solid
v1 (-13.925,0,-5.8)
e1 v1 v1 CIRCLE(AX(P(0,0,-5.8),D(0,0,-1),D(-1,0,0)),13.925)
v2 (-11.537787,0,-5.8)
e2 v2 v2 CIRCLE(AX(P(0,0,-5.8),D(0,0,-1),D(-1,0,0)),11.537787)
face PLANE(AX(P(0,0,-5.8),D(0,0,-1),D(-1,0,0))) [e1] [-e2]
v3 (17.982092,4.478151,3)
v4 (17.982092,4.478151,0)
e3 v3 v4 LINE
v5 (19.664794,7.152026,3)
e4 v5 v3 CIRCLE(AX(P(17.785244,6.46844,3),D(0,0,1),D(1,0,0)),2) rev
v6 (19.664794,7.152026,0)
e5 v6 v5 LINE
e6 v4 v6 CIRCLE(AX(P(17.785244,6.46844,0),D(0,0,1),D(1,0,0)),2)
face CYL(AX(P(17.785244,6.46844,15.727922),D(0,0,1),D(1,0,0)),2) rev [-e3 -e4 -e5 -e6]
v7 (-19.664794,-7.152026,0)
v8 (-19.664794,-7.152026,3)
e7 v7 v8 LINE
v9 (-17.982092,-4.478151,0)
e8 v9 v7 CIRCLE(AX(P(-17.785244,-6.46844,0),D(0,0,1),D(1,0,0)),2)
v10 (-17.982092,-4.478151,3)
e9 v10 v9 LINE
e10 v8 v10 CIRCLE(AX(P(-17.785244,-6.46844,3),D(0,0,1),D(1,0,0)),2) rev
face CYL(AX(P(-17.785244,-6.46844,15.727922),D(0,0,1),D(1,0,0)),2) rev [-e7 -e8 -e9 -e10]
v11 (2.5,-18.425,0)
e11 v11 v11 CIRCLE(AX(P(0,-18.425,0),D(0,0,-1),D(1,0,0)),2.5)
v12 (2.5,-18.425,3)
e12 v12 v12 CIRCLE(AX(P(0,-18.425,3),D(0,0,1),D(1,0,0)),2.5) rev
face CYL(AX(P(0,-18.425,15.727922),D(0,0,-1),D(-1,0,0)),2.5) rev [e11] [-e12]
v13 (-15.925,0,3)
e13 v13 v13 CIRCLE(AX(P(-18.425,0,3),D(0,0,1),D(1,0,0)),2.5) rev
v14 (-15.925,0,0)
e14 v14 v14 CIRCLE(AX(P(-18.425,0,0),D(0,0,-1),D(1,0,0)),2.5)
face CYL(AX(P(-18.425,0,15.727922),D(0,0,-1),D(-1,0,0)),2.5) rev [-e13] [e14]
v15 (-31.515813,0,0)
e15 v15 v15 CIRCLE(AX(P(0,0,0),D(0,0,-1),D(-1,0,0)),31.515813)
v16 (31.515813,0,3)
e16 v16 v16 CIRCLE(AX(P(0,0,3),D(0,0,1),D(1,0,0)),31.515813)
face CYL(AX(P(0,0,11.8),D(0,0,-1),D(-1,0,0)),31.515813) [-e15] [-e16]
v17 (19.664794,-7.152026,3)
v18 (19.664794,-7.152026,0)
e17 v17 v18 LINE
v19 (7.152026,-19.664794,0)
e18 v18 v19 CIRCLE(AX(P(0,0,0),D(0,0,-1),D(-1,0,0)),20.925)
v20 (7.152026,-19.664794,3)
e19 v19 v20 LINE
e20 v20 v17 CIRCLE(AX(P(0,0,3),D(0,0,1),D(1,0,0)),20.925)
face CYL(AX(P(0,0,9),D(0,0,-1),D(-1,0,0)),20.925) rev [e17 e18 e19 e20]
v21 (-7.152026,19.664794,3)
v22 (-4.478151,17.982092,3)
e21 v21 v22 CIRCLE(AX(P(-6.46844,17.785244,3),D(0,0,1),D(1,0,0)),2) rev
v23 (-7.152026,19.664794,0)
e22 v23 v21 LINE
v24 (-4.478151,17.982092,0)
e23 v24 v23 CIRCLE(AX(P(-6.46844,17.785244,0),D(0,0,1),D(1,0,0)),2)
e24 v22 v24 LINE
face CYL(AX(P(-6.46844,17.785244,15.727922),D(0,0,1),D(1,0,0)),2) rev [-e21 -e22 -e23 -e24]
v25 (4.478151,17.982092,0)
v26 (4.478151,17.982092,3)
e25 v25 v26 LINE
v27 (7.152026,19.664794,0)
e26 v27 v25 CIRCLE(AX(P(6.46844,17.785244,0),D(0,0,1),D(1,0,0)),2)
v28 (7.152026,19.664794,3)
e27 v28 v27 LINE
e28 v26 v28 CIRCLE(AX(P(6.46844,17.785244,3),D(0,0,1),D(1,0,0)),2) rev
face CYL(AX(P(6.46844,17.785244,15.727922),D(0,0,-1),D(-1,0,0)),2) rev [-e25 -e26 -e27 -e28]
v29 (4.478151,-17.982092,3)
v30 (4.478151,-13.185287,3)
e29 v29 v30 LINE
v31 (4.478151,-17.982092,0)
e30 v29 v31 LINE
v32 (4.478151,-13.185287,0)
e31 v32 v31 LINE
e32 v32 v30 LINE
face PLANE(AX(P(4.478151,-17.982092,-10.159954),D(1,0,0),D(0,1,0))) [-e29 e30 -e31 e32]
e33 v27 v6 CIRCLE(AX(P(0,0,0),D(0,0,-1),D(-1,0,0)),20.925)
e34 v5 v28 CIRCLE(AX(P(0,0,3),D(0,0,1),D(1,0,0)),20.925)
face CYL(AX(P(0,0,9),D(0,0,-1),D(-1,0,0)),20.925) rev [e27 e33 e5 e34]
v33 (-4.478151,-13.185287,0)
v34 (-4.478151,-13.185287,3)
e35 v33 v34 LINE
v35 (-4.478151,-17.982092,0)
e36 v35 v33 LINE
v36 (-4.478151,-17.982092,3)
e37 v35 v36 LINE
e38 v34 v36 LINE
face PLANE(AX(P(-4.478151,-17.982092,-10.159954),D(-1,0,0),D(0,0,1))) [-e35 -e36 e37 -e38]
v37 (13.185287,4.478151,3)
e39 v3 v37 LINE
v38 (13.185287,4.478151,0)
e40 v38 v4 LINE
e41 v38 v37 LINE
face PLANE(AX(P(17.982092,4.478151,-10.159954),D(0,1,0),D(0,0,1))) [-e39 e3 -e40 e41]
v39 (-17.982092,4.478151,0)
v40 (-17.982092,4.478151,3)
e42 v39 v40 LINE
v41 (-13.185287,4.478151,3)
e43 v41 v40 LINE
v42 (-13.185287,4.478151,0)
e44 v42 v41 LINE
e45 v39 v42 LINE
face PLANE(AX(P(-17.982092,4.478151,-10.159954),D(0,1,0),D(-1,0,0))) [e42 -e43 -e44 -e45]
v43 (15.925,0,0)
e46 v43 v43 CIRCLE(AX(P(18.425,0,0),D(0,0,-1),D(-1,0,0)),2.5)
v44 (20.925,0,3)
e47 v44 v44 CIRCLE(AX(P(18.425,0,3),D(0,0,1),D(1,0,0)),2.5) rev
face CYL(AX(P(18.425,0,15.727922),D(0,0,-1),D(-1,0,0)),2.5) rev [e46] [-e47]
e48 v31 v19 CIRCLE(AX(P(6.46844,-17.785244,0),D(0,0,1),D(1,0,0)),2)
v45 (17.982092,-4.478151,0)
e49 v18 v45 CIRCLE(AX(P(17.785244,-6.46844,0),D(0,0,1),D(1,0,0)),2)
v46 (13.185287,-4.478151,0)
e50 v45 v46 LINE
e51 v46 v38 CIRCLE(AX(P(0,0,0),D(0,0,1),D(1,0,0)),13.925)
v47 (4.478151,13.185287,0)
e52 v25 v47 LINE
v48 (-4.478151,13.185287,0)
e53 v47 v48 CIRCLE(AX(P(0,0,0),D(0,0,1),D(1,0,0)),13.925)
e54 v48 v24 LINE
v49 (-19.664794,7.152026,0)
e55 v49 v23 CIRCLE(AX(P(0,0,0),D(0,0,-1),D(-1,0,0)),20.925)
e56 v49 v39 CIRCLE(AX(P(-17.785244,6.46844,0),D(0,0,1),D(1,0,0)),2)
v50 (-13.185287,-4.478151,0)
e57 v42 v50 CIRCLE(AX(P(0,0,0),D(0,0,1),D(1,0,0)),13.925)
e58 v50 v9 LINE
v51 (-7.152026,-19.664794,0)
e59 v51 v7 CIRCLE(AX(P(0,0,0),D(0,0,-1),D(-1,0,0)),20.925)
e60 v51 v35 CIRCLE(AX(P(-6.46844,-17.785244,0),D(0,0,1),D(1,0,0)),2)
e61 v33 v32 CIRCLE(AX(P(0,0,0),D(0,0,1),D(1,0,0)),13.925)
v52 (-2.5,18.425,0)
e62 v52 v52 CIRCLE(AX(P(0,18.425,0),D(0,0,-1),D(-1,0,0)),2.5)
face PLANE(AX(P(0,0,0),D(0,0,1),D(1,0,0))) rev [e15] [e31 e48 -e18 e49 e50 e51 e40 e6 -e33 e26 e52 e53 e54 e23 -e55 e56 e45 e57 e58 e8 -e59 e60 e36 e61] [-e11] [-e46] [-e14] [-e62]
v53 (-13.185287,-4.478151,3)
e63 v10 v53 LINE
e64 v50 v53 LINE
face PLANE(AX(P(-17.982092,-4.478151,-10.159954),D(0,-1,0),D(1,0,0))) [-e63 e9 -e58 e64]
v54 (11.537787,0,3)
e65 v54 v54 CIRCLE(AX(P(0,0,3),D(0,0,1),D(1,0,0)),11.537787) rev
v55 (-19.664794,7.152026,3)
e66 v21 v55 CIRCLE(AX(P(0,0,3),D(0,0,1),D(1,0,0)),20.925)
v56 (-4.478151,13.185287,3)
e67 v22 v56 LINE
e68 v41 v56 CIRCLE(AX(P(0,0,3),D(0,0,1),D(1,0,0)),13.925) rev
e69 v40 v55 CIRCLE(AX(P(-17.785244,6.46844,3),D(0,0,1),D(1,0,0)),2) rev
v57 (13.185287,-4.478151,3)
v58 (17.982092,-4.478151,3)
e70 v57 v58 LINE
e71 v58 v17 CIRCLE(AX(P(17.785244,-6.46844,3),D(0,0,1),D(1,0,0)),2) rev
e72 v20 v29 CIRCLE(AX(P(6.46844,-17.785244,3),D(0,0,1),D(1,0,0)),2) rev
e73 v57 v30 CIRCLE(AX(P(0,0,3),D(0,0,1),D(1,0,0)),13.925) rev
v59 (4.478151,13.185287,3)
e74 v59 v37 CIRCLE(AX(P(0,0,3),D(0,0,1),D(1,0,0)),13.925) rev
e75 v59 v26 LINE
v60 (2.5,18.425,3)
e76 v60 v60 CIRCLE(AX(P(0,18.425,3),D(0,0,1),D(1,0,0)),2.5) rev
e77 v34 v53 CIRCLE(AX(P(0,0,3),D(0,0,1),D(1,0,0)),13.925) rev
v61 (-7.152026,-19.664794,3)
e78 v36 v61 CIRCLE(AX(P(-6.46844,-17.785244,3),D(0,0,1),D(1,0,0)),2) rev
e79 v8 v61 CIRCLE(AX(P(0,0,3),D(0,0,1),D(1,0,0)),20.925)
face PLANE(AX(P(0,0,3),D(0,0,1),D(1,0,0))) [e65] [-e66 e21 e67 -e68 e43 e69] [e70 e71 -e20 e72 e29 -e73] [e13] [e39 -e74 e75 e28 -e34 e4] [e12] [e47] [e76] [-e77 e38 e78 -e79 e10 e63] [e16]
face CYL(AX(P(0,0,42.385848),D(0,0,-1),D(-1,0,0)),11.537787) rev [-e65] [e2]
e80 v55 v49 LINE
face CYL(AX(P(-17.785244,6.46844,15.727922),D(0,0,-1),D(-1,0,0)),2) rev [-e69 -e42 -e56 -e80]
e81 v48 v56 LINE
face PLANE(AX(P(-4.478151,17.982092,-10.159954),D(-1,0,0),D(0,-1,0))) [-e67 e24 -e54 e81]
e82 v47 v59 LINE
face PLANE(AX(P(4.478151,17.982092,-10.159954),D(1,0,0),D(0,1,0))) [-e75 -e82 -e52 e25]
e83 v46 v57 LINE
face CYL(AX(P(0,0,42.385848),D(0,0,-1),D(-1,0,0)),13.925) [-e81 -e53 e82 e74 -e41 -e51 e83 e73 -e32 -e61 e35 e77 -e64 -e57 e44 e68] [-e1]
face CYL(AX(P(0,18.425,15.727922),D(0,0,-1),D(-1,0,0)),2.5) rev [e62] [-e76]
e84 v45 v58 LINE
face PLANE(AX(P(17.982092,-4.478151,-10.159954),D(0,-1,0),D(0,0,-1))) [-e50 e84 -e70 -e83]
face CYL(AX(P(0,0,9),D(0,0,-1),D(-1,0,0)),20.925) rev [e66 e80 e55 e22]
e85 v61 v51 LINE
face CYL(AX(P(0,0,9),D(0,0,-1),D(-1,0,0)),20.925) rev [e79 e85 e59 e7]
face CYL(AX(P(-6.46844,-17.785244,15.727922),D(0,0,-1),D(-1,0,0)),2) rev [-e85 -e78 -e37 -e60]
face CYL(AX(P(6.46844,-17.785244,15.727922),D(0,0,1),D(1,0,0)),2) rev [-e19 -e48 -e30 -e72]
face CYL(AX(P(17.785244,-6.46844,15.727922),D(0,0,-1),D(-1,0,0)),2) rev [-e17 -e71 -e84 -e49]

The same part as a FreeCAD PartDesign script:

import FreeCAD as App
import Part
import Sketcher

V = App.Vector
Q = App.Units.Quantity


def edges_at(feature, points):
    """Names of the edges that pass closest to the given points."""
    edges = feature.Shape.Edges
    near = lambda p: min(range(len(edges)), key=lambda i: edges[i].distToShape(Part.Vertex(*p))[0])
    return sorted({f"Edge{near(p) + 1}" for p in points})


def add_polygon(sketch, points):
    """Adds a closed chain of lines whose ends are joined by coincident constraints."""
    first, n = sketch.GeometryCount, len(points)
    for a, b in zip(points, points[1:] + points[:1]):
        sketch.addGeometry(Part.LineSegment(App.Vector(*a, 0), App.Vector(*b, 0)), False)
    for i in range(n):
        sketch.addConstraint(Sketcher.Constraint("Coincident", first + i, 2, first + (i + 1) % n, 1))

doc = App.newDocument("Part")
params = doc.addObject("Spreadsheet::Sheet", "Params")
for row, (alias, value) in enumerate([
    ("sketch1_diameter", "105 mm"),
    ("sketch1_diameter2", "8.2 mm"),
    ("pad1_length", "3 mm"),
    ("sketch2_diameter", "41.85 mm"),
    ("pocket1_length", "9 mm"),
    ("sketch3_diameter", "9 mm"),
    ("sketch3_diameter2", "5 mm"),
    ("pad2_length", "3 mm"),
    ("fillet_radius", "2 mm"),
    ("sketch4_diameter", "105 mm"),
    ("pocket2_length", "11.8 mm"),
    ("sketch5_diameter", "27.85 mm"),
    ("pad3_length", "5.8 mm"),
    ("pad3_length2", "3 mm"),
    ("pad4_length", "3 mm"),
], start=1):
    params.set(f"A{row}", alias)
    params.set(f"B{row}", "=" + value)
    params.setAlias(f"B{row}", alias)

body = doc.addObject("PartDesign::Body", "Body")

# Sketch on XY plane
sketch1 = body.newObject("Sketcher::SketchObject", "Sketch")
sketch1.AttachmentSupport = (doc.getObject("XY_Plane"), [""])
sketch1.MapMode = "FlatFace"
sketch1.addGeometry(Part.Circle(V(0, 0, 0), V(0, 0, 1), 52.5), False)  # 0
sketch1.addGeometry(Part.Circle(V(-38.1, -22, 0), V(0, 0, 1), 4.1), False)  # 1
sketch1.addGeometry(Part.Circle(V(38.1, -22, 0), V(0, 0, 1), 4.1), False)  # 2
add_polygon(sketch1, [(-17.5, 10.1), (0, 20.2), (17.5, 10.1), (17.5, -10.1), (0, -20.2), (-17.5, -10.1)])  # lines 3-8
sketch1.addGeometry(Part.Circle(V(0, 44, 0), V(0, 0, 1), 4.1), False)  # 9
sketch1.addConstraint([
    Sketcher.Constraint("Vertical", 5),
    Sketcher.Constraint("Vertical", 8),
    Sketcher.Constraint("Coincident", 0, 3, -1, 1),
    Sketcher.Constraint("Equal", 1, 2),
    Sketcher.Constraint("Equal", 2, 9),
    Sketcher.Constraint("Symmetric", 3, 2, 6, 2, -1, 1),
    Sketcher.Constraint("Symmetric", 4, 2, 7, 2, -1, 1),
    Sketcher.Constraint("Symmetric", 1, 3, 2, 3, -2),
    Sketcher.Constraint("PointOnObject", 9, 3, -2),
    Sketcher.Constraint("PointOnObject", 3, 2, -2),
    Sketcher.Constraint("Parallel", 3, 6),
    Sketcher.Constraint("Horizontal", 5, 2, 7, 2),
    Sketcher.Constraint("Diameter", 0, Q("105 mm")),
    Sketcher.Constraint("Diameter", 1, Q("8.2 mm")),
    Sketcher.Constraint("Angle", 3, Q("30 deg")),
    Sketcher.Constraint("DistanceY", 1, 3, -1, 1, Q("22 mm")),
    Sketcher.Constraint("DistanceY", -1, 1, 9, 3, Q("44 mm")),
    Sketcher.Constraint("DistanceX", 7, 2, 5, 2, Q("35 mm")),
    Sketcher.Constraint("DistanceY", 5, 2, 5, 1, Q("20.207259 mm")),
    Sketcher.Constraint("DistanceX", 1, 3, -1, 1, Q("38.105118 mm")),
])
sketch1.setExpression("Constraints[18]", "Params.sketch1_diameter")
sketch1.setExpression("Constraints[19]", "Params.sketch1_diameter2")
pad1 = body.newObject("PartDesign::Pad", "Pad")
pad1.Profile = sketch1
pad1.setExpression("Length", "Params.pad1_length")

# Sketch on XY plane
sketch2 = body.newObject("Sketcher::SketchObject", "Sketch001")
sketch2.AttachmentSupport = (doc.getObject("XY_Plane"), [""])
sketch2.MapMode = "FlatFace"
sketch2.addGeometry(Part.Circle(V(0, 0, 0), V(0, 0, 1), 21), False)
sketch2.addConstraint([
    Sketcher.Constraint("Coincident", 0, 3, -1, 1),
    Sketcher.Constraint("Diameter", 0, Q("41.85 mm")),
])
sketch2.setExpression("Constraints[1]", "Params.sketch2_diameter")
pocket1 = body.newObject("PartDesign::Pocket", "Pocket")
pocket1.Profile = sketch2
pocket1.setExpression("Length", "Params.pocket1_length")
pocket1.Reversed = True

# Sketch on XY plane
sketch3 = body.newObject("Sketcher::SketchObject", "Sketch002")
sketch3.AttachmentSupport = (doc.getObject("XY_Plane"), [""])
sketch3.MapMode = "FlatFace"
sketch3.addGeometry([
    Part.Circle(V(0, 18.4, 0), V(0, 0, 1), 4.5),  # 0
    Part.Circle(V(0, 18.4, 0), V(0, 0, 1), 2.5),  # 1
    Part.Circle(V(18.4, 0, 0), V(0, 0, 1), 4.5),  # 2
    Part.Circle(V(18.4, 0, 0), V(0, 0, 1), 2.5),  # 3
    Part.Circle(V(0, -18.4, 0), V(0, 0, 1), 4.5),  # 4
    Part.Circle(V(0, -18.4, 0), V(0, 0, 1), 2.5),  # 5
    Part.Circle(V(-18.4, 0, 0), V(0, 0, 1), 4.5),  # 6
    Part.Circle(V(-18.4, 0, 0), V(0, 0, 1), 2.5),  # 7
], False)
sketch3.addConstraint([
    Sketcher.Constraint("Coincident", 1, 3, 0, 3),
    Sketcher.Constraint("Coincident", 3, 3, 2, 3),
    Sketcher.Constraint("Coincident", 5, 3, 4, 3),
    Sketcher.Constraint("Coincident", 7, 3, 6, 3),
    Sketcher.Constraint("Equal", 0, 2),
    Sketcher.Constraint("Equal", 1, 3),
    Sketcher.Constraint("Equal", 2, 4),
    Sketcher.Constraint("Equal", 3, 5),
    Sketcher.Constraint("Equal", 4, 6),
    Sketcher.Constraint("Equal", 5, 7),
    Sketcher.Constraint("Symmetric", 0, 3, 4, 3, -1, 1),
    Sketcher.Constraint("Symmetric", 2, 3, 6, 3, -1, 1),
    Sketcher.Constraint("PointOnObject", 0, 3, -2),
    Sketcher.Constraint("PointOnObject", 2, 3, -1),
    Sketcher.Constraint("Diameter", 0, Q("9 mm")),
    Sketcher.Constraint("Diameter", 1, Q("5 mm")),
    Sketcher.Constraint("DistanceY", 4, 3, 0, 3, Q("36.85 mm")),
    Sketcher.Constraint("DistanceX", 6, 3, 2, 3, Q("36.85 mm")),
])
sketch3.setExpression("Constraints[14]", "Params.sketch3_diameter")
sketch3.setExpression("Constraints[15]", "Params.sketch3_diameter2")
pad2 = body.newObject("PartDesign::Pad", "Pad001")
pad2.Profile = sketch3
pad2.setExpression("Length", "Params.pad2_length")
doc.recompute()

fillet = body.newObject("PartDesign::Fillet", "Fillet")
fillet.Base = (pad2, edges_at(pad2, [
    (-3.969, 20.545, 1.5),
    (3.969, 20.545, 1.5),
    (20.545, 3.969, 1.5),
    (20.545, -3.969, 1.5),
    (3.969, -20.545, 1.5),
    (-3.969, -20.545, 1.5),
    (-20.545, -3.969, 1.5),
    (-20.545, 3.969, 1.5),
]))
fillet.setExpression("Radius", "Params.fillet_radius")

# Sketch on XY plane
sketch4 = body.newObject("Sketcher::SketchObject", "Sketch003")
sketch4.AttachmentSupport = (doc.getObject("XY_Plane"), [""])
sketch4.MapMode = "FlatFace"
sketch4.addGeometry([
    Part.Circle(V(0, 0, 0), V(0, 0, 1), 52),
    Part.Circle(V(0, 0, 0), V(0, 0, 1), 32),
], False)
sketch4.addConstraint([
    Sketcher.Constraint("Coincident", 0, 3, -1, 1),
    Sketcher.Constraint("Coincident", 1, 3, -1, 1),
    Sketcher.Constraint("Diameter", 0, Q("105 mm")),
    Sketcher.Constraint("Diameter", 1, Q("63.031627 mm")),
])
sketch4.setExpression("Constraints[2]", "Params.sketch4_diameter")
pocket2 = body.newObject("PartDesign::Pocket", "Pocket001")
pocket2.Profile = sketch4
pocket2.setExpression("Length", "Params.pocket2_length")
pocket2.Reversed = True
body2 = doc.addObject("PartDesign::Body", "Body001")

# Sketch on XY plane
sketch5 = body2.newObject("Sketcher::SketchObject", "Sketch004")
sketch5.AttachmentSupport = (doc.getObject("XY_Plane001"), [""])
sketch5.MapMode = "FlatFace"
sketch5.addGeometry([
    Part.Circle(V(0, 0, 0), V(0, 0, 1), 14),
    Part.Circle(V(0, 0, 0), V(0, 0, 1), 12),
], False)
sketch5.addConstraint([
    Sketcher.Constraint("Coincident", 0, 3, -1, 1),
    Sketcher.Constraint("Coincident", 1, 3, -1, 1),
    Sketcher.Constraint("Diameter", 0, Q("27.85 mm")),
    Sketcher.Constraint("Diameter", 1, Q("23.075574 mm")),
])
sketch5.setExpression("Constraints[2]", "Params.sketch5_diameter")
pad3 = body2.newObject("PartDesign::Pad", "Pad002")
pad3.Profile = sketch5
pad3.Type = "TwoLengths"
pad3.setExpression("Length", "Params.pad3_length")
pad3.setExpression("Length2", "Params.pad3_length2")
pad3.Reversed = True
body.AllowCompound = True
doc.recompute()

boolean = body.newObject("PartDesign::Boolean", "Boolean")
boolean.Type = "Fuse"
boolean.addObjects([body2])

# Sketch on XY plane
sketch6 = body.newObject("Sketcher::SketchObject", "Sketch005")
sketch6.AttachmentSupport = (doc.getObject("XY_Plane"), [""])
sketch6.MapMode = "FlatFace"
sketch6.AttachmentOffset = App.Placement(V(0, 0, 3), App.Rotation())
add_polygon(sketch6, [(18, 4.5), (13.2, 4.5), (13.2, -4.5), (18, -4.5), (18, -3.6), (16.5, -2.6), (15.1, -1.8), (15.1, 0.8), (16.1, 2.3), (17.5, 3.2)])  # lines 0-9
add_polygon(sketch6, [(4.5, -18), (4.5, -13.2), (-4.5, -13.2), (-4.5, -18), (-3.6, -18), (-2.6, -16.5), (-1.8, -15.1), (0.8, -15.1), (2.3, -16.1), (3.2, -17.5)])  # lines 10-19
add_polygon(sketch6, [(-18, -4.5), (-13.2, -4.5), (-13.2, 4.5), (-18, 4.5), (-18, 3.6), (-16.5, 2.6), (-15.1, 1.8), (-15.1, -0.8), (-16.1, -2.3), (-17.5, -3.2)])  # lines 20-29
add_polygon(sketch6, [(-4.5, 18), (-4.5, 13.2), (4.5, 13.2), (4.5, 18), (3.6, 18), (2.6, 16.5), (1.8, 15.1), (-0.8, 15.1), (-2.3, 16.1), (-3.2, 17.5)])  # lines 30-39
sketch6.addConstraint([
    Sketcher.Constraint("Horizontal", 0),
    Sketcher.Constraint("Vertical", 1),
    Sketcher.Constraint("Horizontal", 2),
    Sketcher.Constraint("Vertical", 3),
    Sketcher.Constraint("Vertical", 6),
    Sketcher.Constraint("Vertical", 10),
    Sketcher.Constraint("Horizontal", 11),
    Sketcher.Constraint("Vertical", 12),
    Sketcher.Constraint("Horizontal", 13),
    Sketcher.Constraint("Horizontal", 16),
    Sketcher.Constraint("Horizontal", 20),
    Sketcher.Constraint("Vertical", 21),
    Sketcher.Constraint("Horizontal", 22),
    Sketcher.Constraint("Vertical", 23),
    Sketcher.Constraint("Vertical", 26),
    Sketcher.Constraint("Vertical", 30),
    Sketcher.Constraint("Horizontal", 31),
    Sketcher.Constraint("Vertical", 32),
    Sketcher.Constraint("Horizontal", 33),
    Sketcher.Constraint("Horizontal", 36),
    Sketcher.Constraint("Symmetric", 0, 2, 20, 2, -1, 1),
    Sketcher.Constraint("Symmetric", 2, 2, 22, 2, -1, 1),
    Sketcher.Constraint("Symmetric", 4, 2, 24, 2, -1, 1),
    Sketcher.Constraint("Symmetric", 5, 2, 25, 2, -1, 1),
    Sketcher.Constraint("Symmetric", 7, 2, 27, 2, -1, 1),
    Sketcher.Constraint("Symmetric", 8, 2, 28, 2, -1, 1),
    Sketcher.Constraint("Symmetric", 10, 2, 30, 2, -1, 1),
    Sketcher.Constraint("Symmetric", 12, 2, 32, 2, -1, 1),
    Sketcher.Constraint("Symmetric", 14, 2, 34, 2, -1, 1),
    Sketcher.Constraint("Symmetric", 15, 2, 35, 2, -1, 1),
    Sketcher.Constraint("Symmetric", 17, 2, 37, 2, -1, 1),
    Sketcher.Constraint("Symmetric", 18, 2, 38, 2, -1, 1),
    Sketcher.Constraint("Symmetric", 12, 2, 19, 2, -2),
    Sketcher.Constraint("Symmetric", 9, 2, 22, 2, -2),
    Sketcher.Constraint("Parallel", 4, 5),
    Sketcher.Constraint("Perpendicular", 5, 7),
    Sketcher.Constraint("Parallel", 7, 14),
    Sketcher.Constraint("Parallel", 14, 15),
    Sketcher.Constraint("Perpendicular", 15, 17),
    Sketcher.Constraint("Perpendicular", 8, 18),
    Sketcher.Constraint("Perpendicular", 9, 19),
    Sketcher.Constraint("Parallel", 17, 24),
    Sketcher.Constraint("Perpendicular", 25, 27),
    Sketcher.Constraint("Perpendicular", 19, 29),
    Sketcher.Constraint("Parallel", 27, 34),
    Sketcher.Constraint("Perpendicular", 35, 37),
    Sketcher.Constraint("Perpendicular", 29, 39),
    Sketcher.Constraint("Equal", 31, 1),
    Sketcher.Constraint("Equal", 33, 3),
    Sketcher.Constraint("Equal", 36, 6),
    Sketcher.Constraint("Equal", 22, 10),
    Sketcher.Constraint("Equal", 4, 14),
    Sketcher.Constraint("Equal", 5, 15),
    Sketcher.Constraint("Equal", 7, 17),
    Sketcher.Constraint("DistanceX", -1, 1, 8, 2, Q("17.5 mm")),
    Sketcher.Constraint("DistanceY", 18, 2, -1, 1, Q("17.5 mm")),
    Sketcher.Constraint("DistanceX", 11, 2, 11, 1, Q("8.956301 mm")),
    Sketcher.Constraint("DistanceX", 16, 1, 16, 2, Q("2.58463 mm")),
    Sketcher.Constraint("DistanceX", 7, 2, 4, 2, Q("0.3994 mm")),
    Sketcher.Constraint("DistanceY", 7, 2, 32, 2, Q("15.666899 mm")),
    Sketcher.Constraint("Distance", 4, Q("1.795179 mm")),
    Sketcher.Constraint("Distance", 5, Q("1.599851 mm")),
    Sketcher.Constraint("Distance", 8, Q("1.685972 mm")),
    Sketcher.Constraint("DistanceX", 0, 2, 0, 1, Q("4.796805 mm")),
    Sketcher.Constraint("DistanceX", 13, 1, 13, 2, Q("0.877718 mm")),
    Sketcher.Constraint("DistanceY", 4, 2, -1, 1, Q("2.64899 mm")),
])
pad4 = body.newObject("PartDesign::Pad", "Pad003")
pad4.Profile = sketch6
pad4.setExpression("Length", "Params.pad4_length")
pad4.Reversed = True

doc.recompute()
